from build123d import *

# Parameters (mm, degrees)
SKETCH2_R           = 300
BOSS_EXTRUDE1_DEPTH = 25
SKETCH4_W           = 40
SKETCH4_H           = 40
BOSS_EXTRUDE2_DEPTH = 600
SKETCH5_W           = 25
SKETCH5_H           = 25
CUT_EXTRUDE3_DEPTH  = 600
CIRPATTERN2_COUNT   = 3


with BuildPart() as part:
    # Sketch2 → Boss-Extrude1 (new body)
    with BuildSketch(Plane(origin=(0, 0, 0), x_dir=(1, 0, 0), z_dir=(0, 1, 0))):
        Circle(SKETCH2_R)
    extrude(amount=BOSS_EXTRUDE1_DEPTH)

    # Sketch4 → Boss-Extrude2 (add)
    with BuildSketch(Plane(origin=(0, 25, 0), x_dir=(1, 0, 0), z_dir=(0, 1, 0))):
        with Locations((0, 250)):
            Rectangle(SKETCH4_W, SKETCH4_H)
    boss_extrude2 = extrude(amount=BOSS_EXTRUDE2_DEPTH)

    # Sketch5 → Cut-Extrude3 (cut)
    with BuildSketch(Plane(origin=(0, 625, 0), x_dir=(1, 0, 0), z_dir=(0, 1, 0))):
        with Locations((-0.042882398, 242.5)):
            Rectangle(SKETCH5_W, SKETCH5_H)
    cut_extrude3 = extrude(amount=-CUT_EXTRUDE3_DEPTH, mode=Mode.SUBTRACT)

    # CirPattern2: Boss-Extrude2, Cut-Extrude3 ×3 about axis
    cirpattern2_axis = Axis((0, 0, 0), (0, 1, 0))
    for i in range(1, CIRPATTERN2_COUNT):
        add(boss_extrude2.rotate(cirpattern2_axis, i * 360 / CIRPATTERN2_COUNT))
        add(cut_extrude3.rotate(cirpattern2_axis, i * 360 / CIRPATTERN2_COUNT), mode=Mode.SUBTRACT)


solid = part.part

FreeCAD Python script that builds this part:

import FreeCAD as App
import Part
import Sketcher

V = App.Vector


def add_polygon(sketch, points):
    """Adds a closed chain of lines whose ends are joined by coincident constraints."""
    first, n = sketch.GeometryCount, len(points)
    for a, b in zip(points, points[1:] + points[:1]):
        sketch.addGeometry(Part.LineSegment(App.Vector(*a, 0), App.Vector(*b, 0)), False)
    for i in range(n):
        sketch.addConstraint(Sketcher.Constraint("Coincident", first + i, 2, first + (i + 1) % n, 1))

doc = App.newDocument("Part")
body = doc.addObject("PartDesign::Body", "Body")

sketch1 = body.newObject("Sketcher::SketchObject", "Sketch")
sketch1.AttachmentSupport = (doc.getObject("XZ_Plane"), [""])
sketch1.MapMode = "FlatFace"
sketch1.addGeometry(Part.Circle(V(0, 0, 0), V(0, 0, 1), 300), False)
sketch1.addConstraint(Sketcher.Constraint("Coincident", 0, 3, -1, 1))
sketch1.addConstraint(Sketcher.Constraint("Diameter", 0, 600.0))
pad1 = body.newObject("PartDesign::Pad", "Pad")
pad1.Profile = sketch1
pad1.Length = 25
pad1.Reversed = True

sketch2 = body.newObject("Sketcher::SketchObject", "Sketch001")
sketch2.AttachmentSupport = (doc.getObject("XZ_Plane"), [""])
sketch2.MapMode = "FlatFace"
sketch2.AttachmentOffset = App.Placement(V(0, 0, -25), App.Rotation())
add_polygon(sketch2, [(-20, -270), (-20, -230), (20, -230), (20, -270)])
sketch2.addConstraint(Sketcher.Constraint("Vertical", 0))
sketch2.addConstraint(Sketcher.Constraint("Horizontal", 1))
sketch2.addConstraint(Sketcher.Constraint("Vertical", 2))
sketch2.addConstraint(Sketcher.Constraint("Horizontal", 3))
sketch2.addConstraint(Sketcher.Constraint("Equal", 3, 0))
sketch2.addConstraint(Sketcher.Constraint("DistanceX", 1, 1, 1, 2, 40.0))
sketch2.addConstraint(Sketcher.Constraint("DistanceX", 0, 2, -1, 1, 20.0))
sketch2.addConstraint(Sketcher.Constraint("DistanceY", 0, 2, -1, 1, 230.0))
pad2 = body.newObject("PartDesign::Pad", "Pad001")
pad2.Profile = sketch2
pad2.Length = 600
pad2.Reversed = True

sketch3 = body.newObject("Sketcher::SketchObject", "Sketch002")
sketch3.AttachmentSupport = (doc.getObject("XZ_Plane"), [""])
sketch3.MapMode = "FlatFace"
sketch3.AttachmentOffset = App.Placement(V(0, 0, -625), App.Rotation())
add_polygon(sketch3, [(-13, -255), (-13, -230), (12, -230), (12, -255)])
sketch3.addConstraint(Sketcher.Constraint("Vertical", 0))
sketch3.addConstraint(Sketcher.Constraint("Horizontal", 1))
sketch3.addConstraint(Sketcher.Constraint("Vertical", 2))
sketch3.addConstraint(Sketcher.Constraint("Horizontal", 3))
sketch3.addConstraint(Sketcher.Constraint("Equal", 3, 0))
sketch3.addConstraint(Sketcher.Constraint("DistanceX", 1, 1, 1, 2, 25.0))
sketch3.addConstraint(Sketcher.Constraint("DistanceY", 0, 2, -1, 1, 230.0))
sketch3.addConstraint(Sketcher.Constraint("DistanceX", 0, 2, -1, 1, 12.542882))
pocket1 = body.newObject("PartDesign::Pocket", "Pocket")
pocket1.Profile = sketch3
pocket1.Length = 600
pocket1.Reversed = True
doc.recompute()

polarpattern = body.newObject("PartDesign::PolarPattern", "PolarPattern")
polarpattern.Originals = [pad2, pocket1]
polarpattern.Axis = (doc.getObject("Y_Axis"), [""])
polarpattern.Angle = 360
polarpattern.Occurrences = 3
body.Tip = polarpattern

doc.recompute()
